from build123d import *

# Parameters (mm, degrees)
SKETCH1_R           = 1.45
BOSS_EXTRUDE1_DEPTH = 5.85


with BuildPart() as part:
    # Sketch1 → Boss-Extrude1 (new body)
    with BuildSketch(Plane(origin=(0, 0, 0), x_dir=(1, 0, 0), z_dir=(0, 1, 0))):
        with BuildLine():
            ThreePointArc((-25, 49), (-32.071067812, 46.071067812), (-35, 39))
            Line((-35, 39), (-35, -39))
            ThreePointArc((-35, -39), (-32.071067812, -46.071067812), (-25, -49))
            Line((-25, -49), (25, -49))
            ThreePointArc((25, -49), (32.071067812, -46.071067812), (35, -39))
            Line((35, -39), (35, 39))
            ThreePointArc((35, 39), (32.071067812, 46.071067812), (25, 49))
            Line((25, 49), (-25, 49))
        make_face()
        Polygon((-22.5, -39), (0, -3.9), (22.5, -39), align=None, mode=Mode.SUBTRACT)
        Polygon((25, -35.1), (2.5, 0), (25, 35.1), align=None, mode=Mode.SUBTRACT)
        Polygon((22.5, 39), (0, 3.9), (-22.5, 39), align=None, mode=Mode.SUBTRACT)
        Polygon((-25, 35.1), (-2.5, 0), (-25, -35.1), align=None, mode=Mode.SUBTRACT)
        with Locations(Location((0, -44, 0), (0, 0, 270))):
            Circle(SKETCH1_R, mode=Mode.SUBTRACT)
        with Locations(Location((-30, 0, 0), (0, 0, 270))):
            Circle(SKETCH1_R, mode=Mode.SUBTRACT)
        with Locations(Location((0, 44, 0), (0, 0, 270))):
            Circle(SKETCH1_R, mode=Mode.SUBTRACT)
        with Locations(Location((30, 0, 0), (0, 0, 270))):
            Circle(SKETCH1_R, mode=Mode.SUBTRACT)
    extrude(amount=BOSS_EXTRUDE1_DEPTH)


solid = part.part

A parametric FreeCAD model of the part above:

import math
import FreeCAD as App
import Part
import Sketcher
from FreeCAD import Vector
Q = App.Units.Quantity

doc = App.newDocument("Part")
body = doc.addObject("PartDesign::Body", "Body")

# Sketch on XZ plane
sketch1 = body.newObject("Sketcher::SketchObject", "Sketch")
sketch1.AttachmentSupport = (doc.getObject("XZ_Plane"), [""])
sketch1.MapMode = "FlatFace"
sketch1.addGeometry([
    Part.ArcOfCircle(Part.Circle(Vector(-25, -39, 0), Vector(0, 0, 1), 10), math.radians(180), math.radians(270)),  # 0
    Part.LineSegment(Vector(-35, -39, 0), Vector(-35, 39, 0)),  # 1
    Part.ArcOfCircle(Part.Circle(Vector(-25, 39, 0), Vector(0, 0, 1), 10), math.radians(90), math.radians(180)),  # 2
    Part.LineSegment(Vector(-25, 49, 0), Vector(25, 49, 0)),  # 3
    Part.ArcOfCircle(Part.Circle(Vector(25, 39, 0), Vector(0, 0, 1), 10), math.radians(0), math.radians(90)),  # 4
    Part.LineSegment(Vector(35, 39, 0), Vector(35, -39, 0)),  # 5
    Part.ArcOfCircle(Part.Circle(Vector(25, -39, 0), Vector(0, 0, 1), 10), math.radians(-90), math.radians(0)),  # 6
    Part.LineSegment(Vector(25, -49, 0), Vector(-25, -49, 0)),  # 7
    Part.Circle(Vector(0, 44, 0), Vector(0, 0, 1), 1.4),  # 8
    Part.LineSegment(Vector(22.5, 39, 0), Vector(-22.5, 39, 0)),  # 9
    Part.LineSegment(Vector(-22.5, 39, 0), Vector(0, 3.9, 0)),  # 10
    Part.LineSegment(Vector(0, 3.9, 0), Vector(22.5, 39, 0)),  # 11
    Part.Circle(Vector(-30, 0, 0), Vector(0, 0, 1), 1.4),  # 12
    Part.LineSegment(Vector(-25, 35.1, 0), Vector(-25, -35.1, 0)),  # 13
    Part.LineSegment(Vector(-25, -35.1, 0), Vector(-2.5, 0, 0)),  # 14
    Part.LineSegment(Vector(-2.5, 0, 0), Vector(-25, 35.1, 0)),  # 15
    Part.LineSegment(Vector(-22.5, -39, 0), Vector(22.5, -39, 0)),  # 16
    Part.LineSegment(Vector(22.5, -39, 0), Vector(0, -3.9, 0)),  # 17
    Part.LineSegment(Vector(0, -3.9, 0), Vector(-22.5, -39, 0)),  # 18
    Part.Circle(Vector(0, -44, 0), Vector(0, 0, 1), 1.4),  # 19
    Part.LineSegment(Vector(25, -35.1, 0), Vector(25, 35.1, 0)),  # 20
    Part.LineSegment(Vector(25, 35.1, 0), Vector(2.5, 0, 0)),  # 21
    Part.LineSegment(Vector(2.5, 0, 0), Vector(25, -35.1, 0)),  # 22
    Part.Circle(Vector(30, 0, 0), Vector(0, 0, 1), 1.4),  # 23
], False)
sketch1.addConstraint([
    Sketcher.Constraint("Tangent", 0, 1, 1, 1),
    Sketcher.Constraint("Tangent", 1, 2, 2, 2),
    Sketcher.Constraint("Tangent", 2, 1, 3, 1),
    Sketcher.Constraint("Tangent", 3, 2, 4, 2),
    Sketcher.Constraint("Tangent", 4, 1, 5, 1),
    Sketcher.Constraint("Tangent", 5, 2, 6, 2),
    Sketcher.Constraint("Tangent", 6, 1, 7, 1),
    Sketcher.Constraint("Tangent", 7, 2, 0, 2),
    Sketcher.Constraint("Coincident", 9, 2, 10, 1),
    Sketcher.Constraint("Coincident", 10, 2, 11, 1),
    Sketcher.Constraint("Coincident", 11, 2, 9, 1),
    Sketcher.Constraint("Coincident", 13, 2, 14, 1),
    Sketcher.Constraint("Coincident", 14, 2, 15, 1),
    Sketcher.Constraint("Coincident", 15, 2, 13, 1),
    Sketcher.Constraint("Coincident", 16, 2, 17, 1),
    Sketcher.Constraint("Coincident", 17, 2, 18, 1),
    Sketcher.Constraint("Coincident", 18, 2, 16, 1),
    Sketcher.Constraint("Coincident", 20, 2, 21, 1),
    Sketcher.Constraint("Coincident", 21, 2, 22, 1),
    Sketcher.Constraint("Coincident", 22, 2, 20, 1),
    Sketcher.Constraint("Vertical", 1),
    Sketcher.Constraint("Horizontal", 3),
    Sketcher.Constraint("Vertical", 5),
    Sketcher.Constraint("Horizontal", 7),
    Sketcher.Constraint("Horizontal", 9),
    Sketcher.Constraint("Vertical", 13),
    Sketcher.Constraint("Horizontal", 16),
    Sketcher.Constraint("Vertical", 20),
    Sketcher.Constraint("Equal", 0, 2),
    Sketcher.Constraint("Equal", 2, 4),
    Sketcher.Constraint("Equal", 4, 6),
    Sketcher.Constraint("Equal", 8, 12),
    Sketcher.Constraint("Equal", 12, 19),
    Sketcher.Constraint("Equal", 19, 23),
    Sketcher.Constraint("Symmetric", 0, 3, 4, 3, -1, 1),
    Sketcher.Constraint("Symmetric", 8, 3, 19, 3, -1, 1),
    Sketcher.Constraint("Symmetric", 12, 3, 23, 3, -1, 1),
    Sketcher.Constraint("Symmetric", 9, 2, 16, 2, -1, 1),
    Sketcher.Constraint("Symmetric", 10, 2, 17, 2, -1, 1),
    Sketcher.Constraint("Symmetric", 13, 2, 20, 2, -1, 1),
    Sketcher.Constraint("Symmetric", 14, 2, 21, 2, -1, 1),
    Sketcher.Constraint("PointOnObject", 8, 3, -2),
    Sketcher.Constraint("PointOnObject", 12, 3, -1),
    Sketcher.Constraint("PointOnObject", 10, 2, -2),
    Sketcher.Constraint("PointOnObject", 14, 2, -1),
    Sketcher.Constraint("Parallel", 11, 14),
    Sketcher.Constraint("Parallel", 10, 15),
    Sketcher.Constraint("Parallel", 14, 18),
    Sketcher.Constraint("Parallel", 17, 22),
    Sketcher.Constraint("Horizontal", 4, 1, 9, 2),
    Sketcher.Constraint("Horizontal", 15, 2, 20, 2),
    Sketcher.Constraint("Vertical", 7, 2, 13, 2),
    Sketcher.Constraint("Equal", 11, 14),
    Sketcher.Constraint("Radius", 0, Q("10 mm")),
    Sketcher.Constraint("Diameter", 8, Q("2.9 mm")),
    Sketcher.Constraint("DistanceX", 3, 1, 3, 2, Q("50 mm")),
    Sketcher.Constraint("DistanceX", 9, 2, 9, 1, Q("45 mm")),
    Sketcher.Constraint("DistanceY", 1, 1, 1, 2, Q("78 mm")),
    Sketcher.Constraint("DistanceY", 13, 2, 13, 1, Q("70.2 mm")),
    Sketcher.Constraint("DistanceY", -1, 1, 8, 3, Q("44 mm")),
    Sketcher.Constraint("DistanceX", 12, 3, -1, 1, Q("30 mm")),
])
pad1 = body.newObject("PartDesign::Pad", "Pad")
pad1.Profile = sketch1
pad1.Length = 5.85
pad1.Reversed = True

doc.recompute()
